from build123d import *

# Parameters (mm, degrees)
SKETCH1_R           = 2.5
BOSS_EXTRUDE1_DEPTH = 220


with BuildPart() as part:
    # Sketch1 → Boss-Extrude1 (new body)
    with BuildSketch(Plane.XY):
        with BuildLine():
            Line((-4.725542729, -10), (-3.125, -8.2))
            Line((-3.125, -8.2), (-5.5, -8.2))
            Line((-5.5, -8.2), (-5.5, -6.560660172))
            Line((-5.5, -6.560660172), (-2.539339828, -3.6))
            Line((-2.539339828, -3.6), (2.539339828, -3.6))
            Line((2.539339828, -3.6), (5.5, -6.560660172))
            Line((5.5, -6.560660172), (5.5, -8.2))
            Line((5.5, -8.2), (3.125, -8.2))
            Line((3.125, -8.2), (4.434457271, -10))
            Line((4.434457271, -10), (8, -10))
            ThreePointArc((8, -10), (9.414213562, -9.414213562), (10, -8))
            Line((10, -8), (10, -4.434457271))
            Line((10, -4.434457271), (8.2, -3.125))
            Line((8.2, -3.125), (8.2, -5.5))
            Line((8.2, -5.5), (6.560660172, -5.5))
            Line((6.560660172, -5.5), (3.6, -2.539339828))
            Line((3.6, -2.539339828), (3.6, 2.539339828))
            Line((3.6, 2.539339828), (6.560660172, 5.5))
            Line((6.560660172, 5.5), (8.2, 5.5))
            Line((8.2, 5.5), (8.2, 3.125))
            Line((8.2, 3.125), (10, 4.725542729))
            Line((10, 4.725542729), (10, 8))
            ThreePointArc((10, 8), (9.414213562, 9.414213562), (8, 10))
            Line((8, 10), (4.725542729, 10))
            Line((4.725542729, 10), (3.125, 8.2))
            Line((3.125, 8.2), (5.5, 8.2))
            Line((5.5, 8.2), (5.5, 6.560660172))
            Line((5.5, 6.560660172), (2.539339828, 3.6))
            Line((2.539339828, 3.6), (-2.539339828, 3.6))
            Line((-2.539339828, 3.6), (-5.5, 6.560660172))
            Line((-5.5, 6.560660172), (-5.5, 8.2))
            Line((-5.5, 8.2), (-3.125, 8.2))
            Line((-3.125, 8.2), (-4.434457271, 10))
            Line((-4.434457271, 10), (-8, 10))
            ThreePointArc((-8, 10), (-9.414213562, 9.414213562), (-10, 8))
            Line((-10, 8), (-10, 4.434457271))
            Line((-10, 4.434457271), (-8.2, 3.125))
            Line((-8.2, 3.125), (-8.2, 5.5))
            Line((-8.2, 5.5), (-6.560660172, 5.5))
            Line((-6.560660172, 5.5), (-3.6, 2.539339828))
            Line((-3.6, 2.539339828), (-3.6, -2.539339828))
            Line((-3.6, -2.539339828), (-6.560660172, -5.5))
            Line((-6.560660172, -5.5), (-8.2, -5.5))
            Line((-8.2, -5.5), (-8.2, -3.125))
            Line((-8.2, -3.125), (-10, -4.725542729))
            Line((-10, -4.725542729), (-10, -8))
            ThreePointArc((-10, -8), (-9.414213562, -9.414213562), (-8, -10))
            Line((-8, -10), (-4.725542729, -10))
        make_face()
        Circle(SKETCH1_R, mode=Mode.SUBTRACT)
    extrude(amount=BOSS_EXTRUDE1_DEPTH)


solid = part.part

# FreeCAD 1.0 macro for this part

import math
import FreeCAD as App
import Part
import Sketcher
from FreeCAD import Vector
Q = App.Units.Quantity

doc = App.newDocument("Part")
body = doc.addObject("PartDesign::Body", "Body")

sketch1 = body.newObject("Sketcher::SketchObject", "Sketch")
sketch1.AttachmentSupport = (doc.getObject("XY_Plane"), [""])
sketch1.MapMode = "FlatFace"
sketch1.addGeometry(Part.LineSegment(Vector(-4.7, -10, 0), Vector(-3.1, -8.2, 0)), False)
sketch1.addGeometry(Part.LineSegment(Vector(-3.1, -8.2, 0), Vector(-5.5, -8.2, 0)), False)
sketch1.addGeometry(Part.LineSegment(Vector(-5.5, -8.2, 0), Vector(-5.5, -6.6, 0)), False)
sketch1.addGeometry(Part.LineSegment(Vector(-5.5, -6.6, 0), Vector(-2.5, -3.6, 0)), False)
sketch1.addGeometry(Part.LineSegment(Vector(-2.5, -3.6, 0), Vector(2.5, -3.6, 0)), False)
sketch1.addGeometry(Part.LineSegment(Vector(2.5, -3.6, 0), Vector(5.5, -6.6, 0)), False)
sketch1.addGeometry(Part.LineSegment(Vector(5.5, -6.6, 0), Vector(5.5, -8.2, 0)), False)
sketch1.addGeometry(Part.LineSegment(Vector(5.5, -8.2, 0), Vector(3.1, -8.2, 0)), False)
sketch1.addGeometry(Part.LineSegment(Vector(3.1, -8.2, 0), Vector(4.4, -10, 0)), False)
sketch1.addGeometry(Part.LineSegment(Vector(4.4, -10, 0), Vector(8, -10, 0)), False)
sketch1.addGeometry(Part.ArcOfCircle(Part.Circle(Vector(8, -8, 0), Vector(0, 0, 1), 2), math.radians(-90), math.radians(0)), False)
sketch1.addGeometry(Part.LineSegment(Vector(10, -8, 0), Vector(10, -4.4, 0)), False)
sketch1.addGeometry(Part.LineSegment(Vector(10, -4.4, 0), Vector(8.2, -3.1, 0)), False)
sketch1.addGeometry(Part.LineSegment(Vector(8.2, -3.1, 0), Vector(8.2, -5.5, 0)), False)
sketch1.addGeometry(Part.LineSegment(Vector(8.2, -5.5, 0), Vector(6.6, -5.5, 0)), False)
sketch1.addGeometry(Part.LineSegment(Vector(6.6, -5.5, 0), Vector(3.6, -2.5, 0)), False)
sketch1.addGeometry(Part.LineSegment(Vector(3.6, -2.5, 0), Vector(3.6, 2.5, 0)), False)
sketch1.addGeometry(Part.LineSegment(Vector(3.6, 2.5, 0), Vector(6.6, 5.5, 0)), False)
sketch1.addGeometry(Part.LineSegment(Vector(6.6, 5.5, 0), Vector(8.2, 5.5, 0)), False)
sketch1.addGeometry(Part.LineSegment(Vector(8.2, 5.5, 0), Vector(8.2, 3.1, 0)), False)
sketch1.addGeometry(Part.LineSegment(Vector(8.2, 3.1, 0), Vector(10, 4.7, 0)), False)
sketch1.addGeometry(Part.LineSegment(Vector(10, 4.7, 0), Vector(10, 8, 0)), False)
sketch1.addGeometry(Part.ArcOfCircle(Part.Circle(Vector(8, 8, 0), Vector(0, 0, 1), 2), math.radians(0), math.radians(90)), False)
sketch1.addGeometry(Part.LineSegment(Vector(8, 10, 0), Vector(4.7, 10, 0)), False)
sketch1.addGeometry(Part.LineSegment(Vector(4.7, 10, 0), Vector(3.1, 8.2, 0)), False)
sketch1.addGeometry(Part.LineSegment(Vector(3.1, 8.2, 0), Vector(5.5, 8.2, 0)), False)
sketch1.addGeometry(Part.LineSegment(Vector(5.5, 8.2, 0), Vector(5.5, 6.6, 0)), False)
sketch1.addGeometry(Part.LineSegment(Vector(5.5, 6.6, 0), Vector(2.5, 3.6, 0)), False)
sketch1.addGeometry(Part.LineSegment(Vector(2.5, 3.6, 0), Vector(-2.5, 3.6, 0)), False)
sketch1.addGeometry(Part.LineSegment(Vector(-2.5, 3.6, 0), Vector(-5.5, 6.6, 0)), False)
sketch1.addGeometry(Part.LineSegment(Vector(-5.5, 6.6, 0), Vector(-5.5, 8.2, 0)), False)
sketch1.addGeometry(Part.LineSegment(Vector(-5.5, 8.2, 0), Vector(-3.1, 8.2, 0)), False)
sketch1.addGeometry(Part.LineSegment(Vector(-3.1, 8.2, 0), Vector(-4.4, 10, 0)), False)
sketch1.addGeometry(Part.LineSegment(Vector(-4.4, 10, 0), Vector(-8, 10, 0)), False)
sketch1.addGeometry(Part.ArcOfCircle(Part.Circle(Vector(-8, 8, 0), Vector(0, 0, 1), 2), math.radians(90), math.radians(180)), False)
sketch1.addGeometry(Part.LineSegment(Vector(-10, 8, 0), Vector(-10, 4.4, 0)), False)
sketch1.addGeometry(Part.LineSegment(Vector(-10, 4.4, 0), Vector(-8.2, 3.1, 0)), False)
sketch1.addGeometry(Part.LineSegment(Vector(-8.2, 3.1, 0), Vector(-8.2, 5.5, 0)), False)
sketch1.addGeometry(Part.LineSegment(Vector(-8.2, 5.5, 0), Vector(-6.6, 5.5, 0)), False)
sketch1.addGeometry(Part.LineSegment(Vector(-6.6, 5.5, 0), Vector(-3.6, 2.5, 0)), False)
sketch1.addGeometry(Part.LineSegment(Vector(-3.6, 2.5, 0), Vector(-3.6, -2.5, 0)), False)
sketch1.addGeometry(Part.LineSegment(Vector(-3.6, -2.5, 0), Vector(-6.6, -5.5, 0)), False)
sketch1.addGeometry(Part.LineSegment(Vector(-6.6, -5.5, 0), Vector(-8.2, -5.5, 0)), False)
sketch1.addGeometry(Part.LineSegment(Vector(-8.2, -5.5, 0), Vector(-8.2, -3.1, 0)), False)
sketch1.addGeometry(Part.LineSegment(Vector(-8.2, -3.1, 0), Vector(-10, -4.7, 0)), False)
sketch1.addGeometry(Part.LineSegment(Vector(-10, -4.7, 0), Vector(-10, -8, 0)), False)
sketch1.addGeometry(Part.ArcOfCircle(Part.Circle(Vector(-8, -8, 0), Vector(0, 0, 1), 2), math.radians(-180), math.radians(-90)), False)
sketch1.addGeometry(Part.LineSegment(Vector(-8, -10, 0), Vector(-4.7, -10, 0)), False)
sketch1.addGeometry(Part.Circle(Vector(0, 0, 0), Vector(0, 0, 1), 2.5), False)
sketch1.addConstraint(Sketcher.Constraint("Coincident", 0, 2, 1, 1))
sketch1.addConstraint(Sketcher.Constraint("Coincident", 1, 2, 2, 1))
sketch1.addConstraint(Sketcher.Constraint("Coincident", 2, 2, 3, 1))
sketch1.addConstraint(Sketcher.Constraint("Coincident", 3, 2, 4, 1))
sketch1.addConstraint(Sketcher.Constraint("Coincident", 4, 2, 5, 1))
sketch1.addConstraint(Sketcher.Constraint("Coincident", 5, 2, 6, 1))
sketch1.addConstraint(Sketcher.Constraint("Coincident", 6, 2, 7, 1))
sketch1.addConstraint(Sketcher.Constraint("Coincident", 7, 2, 8, 1))
sketch1.addConstraint(Sketcher.Constraint("Coincident", 8, 2, 9, 1))
sketch1.addConstraint(Sketcher.Constraint("Tangent", 9, 2, 10, 1))
sketch1.addConstraint(Sketcher.Constraint("Tangent", 10, 2, 11, 1))
sketch1.addConstraint(Sketcher.Constraint("Coincident", 11, 2, 12, 1))
sketch1.addConstraint(Sketcher.Constraint("Coincident", 12, 2, 13, 1))
sketch1.addConstraint(Sketcher.Constraint("Coincident", 13, 2, 14, 1))
sketch1.addConstraint(Sketcher.Constraint("Coincident", 14, 2, 15, 1))
sketch1.addConstraint(Sketcher.Constraint("Coincident", 15, 2, 16, 1))
sketch1.addConstraint(Sketcher.Constraint("Coincident", 16, 2, 17, 1))
sketch1.addConstraint(Sketcher.Constraint("Coincident", 17, 2, 18, 1))
sketch1.addConstraint(Sketcher.Constraint("Coincident", 18, 2, 19, 1))
sketch1.addConstraint(Sketcher.Constraint("Coincident", 19, 2, 20, 1))
sketch1.addConstraint(Sketcher.Constraint("Coincident", 20, 2, 21, 1))
sketch1.addConstraint(Sketcher.Constraint("Tangent", 21, 2, 22, 1))
sketch1.addConstraint(Sketcher.Constraint("Tangent", 22, 2, 23, 1))
sketch1.addConstraint(Sketcher.Constraint("Coincident", 23, 2, 24, 1))
sketch1.addConstraint(Sketcher.Constraint("Coincident", 24, 2, 25, 1))
sketch1.addConstraint(Sketcher.Constraint("Coincident", 25, 2, 26, 1))
sketch1.addConstraint(Sketcher.Constraint("Coincident", 26, 2, 27, 1))
sketch1.addConstraint(Sketcher.Constraint("Coincident", 27, 2, 28, 1))
sketch1.addConstraint(Sketcher.Constraint("Coincident", 28, 2, 29, 1))
sketch1.addConstraint(Sketcher.Constraint("Coincident", 29, 2, 30, 1))
sketch1.addConstraint(Sketcher.Constraint("Coincident", 30, 2, 31, 1))
sketch1.addConstraint(Sketcher.Constraint("Coincident", 31, 2, 32, 1))
sketch1.addConstraint(Sketcher.Constraint("Coincident", 32, 2, 33, 1))
sketch1.addConstraint(Sketcher.Constraint("Tangent", 33, 2, 34, 1))
sketch1.addConstraint(Sketcher.Constraint("Tangent", 34, 2, 35, 1))
sketch1.addConstraint(Sketcher.Constraint("Coincident", 35, 2, 36, 1))
sketch1.addConstraint(Sketcher.Constraint("Coincident", 36, 2, 37, 1))
sketch1.addConstraint(Sketcher.Constraint("Coincident", 37, 2, 38, 1))
sketch1.addConstraint(Sketcher.Constraint("Coincident", 38, 2, 39, 1))
sketch1.addConstraint(Sketcher.Constraint("Coincident", 39, 2, 40, 1))
sketch1.addConstraint(Sketcher.Constraint("Coincident", 40, 2, 41, 1))
sketch1.addConstraint(Sketcher.Constraint("Coincident", 41, 2, 42, 1))
sketch1.addConstraint(Sketcher.Constraint("Coincident", 42, 2, 43, 1))
sketch1.addConstraint(Sketcher.Constraint("Coincident", 43, 2, 44, 1))
sketch1.addConstraint(Sketcher.Constraint("Coincident", 44, 2, 45, 1))
sketch1.addConstraint(Sketcher.Constraint("Tangent", 45, 2, 46, 1))
sketch1.addConstraint(Sketcher.Constraint("Tangent", 46, 2, 47, 1))
sketch1.addConstraint(Sketcher.Constraint("Coincident", 47, 2, 0, 1))
sketch1.addConstraint(Sketcher.Constraint("Horizontal", 1))
sketch1.addConstraint(Sketcher.Constraint("Vertical", 2))
sketch1.addConstraint(Sketcher.Constraint("Horizontal", 4))
sketch1.addConstraint(Sketcher.Constraint("Vertical", 6))
sketch1.addConstraint(Sketcher.Constraint("Horizontal", 7))
sketch1.addConstraint(Sketcher.Constraint("Horizontal", 9))
sketch1.addConstraint(Sketcher.Constraint("Vertical", 11))
sketch1.addConstraint(Sketcher.Constraint("Vertical", 13))
sketch1.addConstraint(Sketcher.Constraint("Horizontal", 14))
sketch1.addConstraint(Sketcher.Constraint("Vertical", 16))
sketch1.addConstraint(Sketcher.Constraint("Horizontal", 18))
sketch1.addConstraint(Sketcher.Constraint("Vertical", 19))
sketch1.addConstraint(Sketcher.Constraint("Vertical", 21))
sketch1.addConstraint(Sketcher.Constraint("Horizontal", 23))
sketch1.addConstraint(Sketcher.Constraint("Horizontal", 25))
sketch1.addConstraint(Sketcher.Constraint("Vertical", 26))
sketch1.addConstraint(Sketcher.Constraint("Horizontal", 28))
sketch1.addConstraint(Sketcher.Constraint("Vertical", 30))
sketch1.addConstraint(Sketcher.Constraint("Horizontal", 31))
sketch1.addConstraint(Sketcher.Constraint("Horizontal", 33))
sketch1.addConstraint(Sketcher.Constraint("Vertical", 35))
sketch1.addConstraint(Sketcher.Constraint("Vertical", 37))
sketch1.addConstraint(Sketcher.Constraint("Horizontal", 38))
sketch1.addConstraint(Sketcher.Constraint("Vertical", 40))
sketch1.addConstraint(Sketcher.Constraint("Horizontal", 42))
sketch1.addConstraint(Sketcher.Constraint("Vertical", 43))
sketch1.addConstraint(Sketcher.Constraint("Vertical", 45))
sketch1.addConstraint(Sketcher.Constraint("Horizontal", 47))
sketch1.addConstraint(Sketcher.Constraint("Coincident", 48, 3, -1, 1))
sketch1.addConstraint(Sketcher.Constraint("Equal", 10, 22))
sketch1.addConstraint(Sketcher.Constraint("Equal", 22, 34))
sketch1.addConstraint(Sketcher.Constraint("Equal", 34, 46))
sketch1.addConstraint(Sketcher.Constraint("Symmetric", 10, 3, 34, 3, -1, 1))
sketch1.addConstraint(Sketcher.Constraint("Symmetric", 22, 3, 46, 3, -1, 1))
sketch1.addConstraint(Sketcher.Constraint("Symmetric", 0, 2, 24, 2, -1, 1))
sketch1.addConstraint(Sketcher.Constraint("Symmetric", 2, 2, 26, 2, -1, 1))
sketch1.addConstraint(Sketcher.Constraint("Symmetric", 3, 2, 27, 2, -1, 1))
sketch1.addConstraint(Sketcher.Constraint("Symmetric", 5, 2, 29, 2, -1, 1))
sketch1.addConstraint(Sketcher.Constraint("Symmetric", 7, 2, 31, 2, -1, 1))
sketch1.addConstraint(Sketcher.Constraint("Symmetric", 12, 2, 36, 2, -1, 1))
sketch1.addConstraint(Sketcher.Constraint("Symmetric", 14, 2, 38, 2, -1, 1))
sketch1.addConstraint(Sketcher.Constraint("Symmetric", 15, 2, 39, 2, -1, 1))
sketch1.addConstraint(Sketcher.Constraint("Symmetric", 17, 2, 41, 2, -1, 1))
sketch1.addConstraint(Sketcher.Constraint("Symmetric", 19, 2, 43, 2, -1, 1))
sketch1.addConstraint(Sketcher.Constraint("Symmetric", 22, 3, 34, 3, -2))
sketch1.addConstraint(Sketcher.Constraint("Symmetric", 2, 2, 5, 2, -2))
sketch1.addConstraint(Sketcher.Constraint("Symmetric", 0, 2, 7, 2, -2))
sketch1.addConstraint(Sketcher.Constraint("Symmetric", 19, 2, 36, 2, -2))
sketch1.addConstraint(Sketcher.Constraint("Symmetric", 17, 2, 38, 2, -2))
sketch1.addConstraint(Sketcher.Constraint("Perpendicular", 3, 5))
sketch1.addConstraint(Sketcher.Constraint("Parallel", 5, 15))
sketch1.addConstraint(Sketcher.Constraint("Perpendicular", 15, 17))
sketch1.addConstraint(Sketcher.Constraint("Parallel", 0, 24))
sketch1.addConstraint(Sketcher.Constraint("Perpendicular", 27, 29))
sketch1.addConstraint(Sketcher.Constraint("Parallel", 8, 32))
sketch1.addConstraint(Sketcher.Constraint("Parallel", 12, 36))
sketch1.addConstraint(Sketcher.Constraint("Perpendicular", 39, 41))
sketch1.addConstraint(Sketcher.Constraint("Parallel", 20, 44))
sketch1.addConstraint(Sketcher.Constraint("Horizontal", 16, 2, 39, 2))
sketch1.addConstraint(Sketcher.Constraint("Equal", 42, 2))
sketch1.addConstraint(Sketcher.Constraint("Equal", 33, 11))
sketch1.addConstraint(Sketcher.Constraint("Equal", 31, 13))
sketch1.addConstraint(Sketcher.Constraint("Equal", 28, 16))
sketch1.addConstraint(Sketcher.Constraint("Equal", 47, 21))
sketch1.addConstraint(Sketcher.Constraint("Equal", 8, 12))
sketch1.addConstraint(Sketcher.Constraint("Equal", 5, 15))
sketch1.addConstraint(Sketcher.Constraint("Equal", 0, 20))
sketch1.addConstraint(Sketcher.Constraint("Diameter", 48, Q("5 mm")))
sketch1.addConstraint(Sketcher.Constraint("Radius", 10, Q("2 mm")))
sketch1.addConstraint(Sketcher.Constraint("DistanceX", -1, 1, 10, 3, Q("8 mm")))
sketch1.addConstraint(Sketcher.Constraint("DistanceY", 0, 2, -1, 1, Q("8.2 mm")))
sketch1.addConstraint(Sketcher.Constraint("DistanceX", 1, 2, -1, 1, Q("5.5 mm")))
sketch1.addConstraint(Sketcher.Constraint("DistanceY", 3, 2, -1, 1, Q("3.6 mm")))
sketch1.addConstraint(Sketcher.Constraint("DistanceX", 1, 2, 1, 1, Q("2.375 mm")))
sketch1.addConstraint(Sketcher.Constraint("DistanceX", 4, 1, 4, 2, Q("5.07868 mm")))
sketch1.addConstraint(Sketcher.Constraint("Distance", 0, Q("2.40868 mm")))
sketch1.addConstraint(Sketcher.Constraint("Distance", 8, Q("2.225911 mm")))
pad1 = body.newObject("PartDesign::Pad", "Pad")
pad1.Profile = sketch1
pad1.Length = 220

doc.recompute()
